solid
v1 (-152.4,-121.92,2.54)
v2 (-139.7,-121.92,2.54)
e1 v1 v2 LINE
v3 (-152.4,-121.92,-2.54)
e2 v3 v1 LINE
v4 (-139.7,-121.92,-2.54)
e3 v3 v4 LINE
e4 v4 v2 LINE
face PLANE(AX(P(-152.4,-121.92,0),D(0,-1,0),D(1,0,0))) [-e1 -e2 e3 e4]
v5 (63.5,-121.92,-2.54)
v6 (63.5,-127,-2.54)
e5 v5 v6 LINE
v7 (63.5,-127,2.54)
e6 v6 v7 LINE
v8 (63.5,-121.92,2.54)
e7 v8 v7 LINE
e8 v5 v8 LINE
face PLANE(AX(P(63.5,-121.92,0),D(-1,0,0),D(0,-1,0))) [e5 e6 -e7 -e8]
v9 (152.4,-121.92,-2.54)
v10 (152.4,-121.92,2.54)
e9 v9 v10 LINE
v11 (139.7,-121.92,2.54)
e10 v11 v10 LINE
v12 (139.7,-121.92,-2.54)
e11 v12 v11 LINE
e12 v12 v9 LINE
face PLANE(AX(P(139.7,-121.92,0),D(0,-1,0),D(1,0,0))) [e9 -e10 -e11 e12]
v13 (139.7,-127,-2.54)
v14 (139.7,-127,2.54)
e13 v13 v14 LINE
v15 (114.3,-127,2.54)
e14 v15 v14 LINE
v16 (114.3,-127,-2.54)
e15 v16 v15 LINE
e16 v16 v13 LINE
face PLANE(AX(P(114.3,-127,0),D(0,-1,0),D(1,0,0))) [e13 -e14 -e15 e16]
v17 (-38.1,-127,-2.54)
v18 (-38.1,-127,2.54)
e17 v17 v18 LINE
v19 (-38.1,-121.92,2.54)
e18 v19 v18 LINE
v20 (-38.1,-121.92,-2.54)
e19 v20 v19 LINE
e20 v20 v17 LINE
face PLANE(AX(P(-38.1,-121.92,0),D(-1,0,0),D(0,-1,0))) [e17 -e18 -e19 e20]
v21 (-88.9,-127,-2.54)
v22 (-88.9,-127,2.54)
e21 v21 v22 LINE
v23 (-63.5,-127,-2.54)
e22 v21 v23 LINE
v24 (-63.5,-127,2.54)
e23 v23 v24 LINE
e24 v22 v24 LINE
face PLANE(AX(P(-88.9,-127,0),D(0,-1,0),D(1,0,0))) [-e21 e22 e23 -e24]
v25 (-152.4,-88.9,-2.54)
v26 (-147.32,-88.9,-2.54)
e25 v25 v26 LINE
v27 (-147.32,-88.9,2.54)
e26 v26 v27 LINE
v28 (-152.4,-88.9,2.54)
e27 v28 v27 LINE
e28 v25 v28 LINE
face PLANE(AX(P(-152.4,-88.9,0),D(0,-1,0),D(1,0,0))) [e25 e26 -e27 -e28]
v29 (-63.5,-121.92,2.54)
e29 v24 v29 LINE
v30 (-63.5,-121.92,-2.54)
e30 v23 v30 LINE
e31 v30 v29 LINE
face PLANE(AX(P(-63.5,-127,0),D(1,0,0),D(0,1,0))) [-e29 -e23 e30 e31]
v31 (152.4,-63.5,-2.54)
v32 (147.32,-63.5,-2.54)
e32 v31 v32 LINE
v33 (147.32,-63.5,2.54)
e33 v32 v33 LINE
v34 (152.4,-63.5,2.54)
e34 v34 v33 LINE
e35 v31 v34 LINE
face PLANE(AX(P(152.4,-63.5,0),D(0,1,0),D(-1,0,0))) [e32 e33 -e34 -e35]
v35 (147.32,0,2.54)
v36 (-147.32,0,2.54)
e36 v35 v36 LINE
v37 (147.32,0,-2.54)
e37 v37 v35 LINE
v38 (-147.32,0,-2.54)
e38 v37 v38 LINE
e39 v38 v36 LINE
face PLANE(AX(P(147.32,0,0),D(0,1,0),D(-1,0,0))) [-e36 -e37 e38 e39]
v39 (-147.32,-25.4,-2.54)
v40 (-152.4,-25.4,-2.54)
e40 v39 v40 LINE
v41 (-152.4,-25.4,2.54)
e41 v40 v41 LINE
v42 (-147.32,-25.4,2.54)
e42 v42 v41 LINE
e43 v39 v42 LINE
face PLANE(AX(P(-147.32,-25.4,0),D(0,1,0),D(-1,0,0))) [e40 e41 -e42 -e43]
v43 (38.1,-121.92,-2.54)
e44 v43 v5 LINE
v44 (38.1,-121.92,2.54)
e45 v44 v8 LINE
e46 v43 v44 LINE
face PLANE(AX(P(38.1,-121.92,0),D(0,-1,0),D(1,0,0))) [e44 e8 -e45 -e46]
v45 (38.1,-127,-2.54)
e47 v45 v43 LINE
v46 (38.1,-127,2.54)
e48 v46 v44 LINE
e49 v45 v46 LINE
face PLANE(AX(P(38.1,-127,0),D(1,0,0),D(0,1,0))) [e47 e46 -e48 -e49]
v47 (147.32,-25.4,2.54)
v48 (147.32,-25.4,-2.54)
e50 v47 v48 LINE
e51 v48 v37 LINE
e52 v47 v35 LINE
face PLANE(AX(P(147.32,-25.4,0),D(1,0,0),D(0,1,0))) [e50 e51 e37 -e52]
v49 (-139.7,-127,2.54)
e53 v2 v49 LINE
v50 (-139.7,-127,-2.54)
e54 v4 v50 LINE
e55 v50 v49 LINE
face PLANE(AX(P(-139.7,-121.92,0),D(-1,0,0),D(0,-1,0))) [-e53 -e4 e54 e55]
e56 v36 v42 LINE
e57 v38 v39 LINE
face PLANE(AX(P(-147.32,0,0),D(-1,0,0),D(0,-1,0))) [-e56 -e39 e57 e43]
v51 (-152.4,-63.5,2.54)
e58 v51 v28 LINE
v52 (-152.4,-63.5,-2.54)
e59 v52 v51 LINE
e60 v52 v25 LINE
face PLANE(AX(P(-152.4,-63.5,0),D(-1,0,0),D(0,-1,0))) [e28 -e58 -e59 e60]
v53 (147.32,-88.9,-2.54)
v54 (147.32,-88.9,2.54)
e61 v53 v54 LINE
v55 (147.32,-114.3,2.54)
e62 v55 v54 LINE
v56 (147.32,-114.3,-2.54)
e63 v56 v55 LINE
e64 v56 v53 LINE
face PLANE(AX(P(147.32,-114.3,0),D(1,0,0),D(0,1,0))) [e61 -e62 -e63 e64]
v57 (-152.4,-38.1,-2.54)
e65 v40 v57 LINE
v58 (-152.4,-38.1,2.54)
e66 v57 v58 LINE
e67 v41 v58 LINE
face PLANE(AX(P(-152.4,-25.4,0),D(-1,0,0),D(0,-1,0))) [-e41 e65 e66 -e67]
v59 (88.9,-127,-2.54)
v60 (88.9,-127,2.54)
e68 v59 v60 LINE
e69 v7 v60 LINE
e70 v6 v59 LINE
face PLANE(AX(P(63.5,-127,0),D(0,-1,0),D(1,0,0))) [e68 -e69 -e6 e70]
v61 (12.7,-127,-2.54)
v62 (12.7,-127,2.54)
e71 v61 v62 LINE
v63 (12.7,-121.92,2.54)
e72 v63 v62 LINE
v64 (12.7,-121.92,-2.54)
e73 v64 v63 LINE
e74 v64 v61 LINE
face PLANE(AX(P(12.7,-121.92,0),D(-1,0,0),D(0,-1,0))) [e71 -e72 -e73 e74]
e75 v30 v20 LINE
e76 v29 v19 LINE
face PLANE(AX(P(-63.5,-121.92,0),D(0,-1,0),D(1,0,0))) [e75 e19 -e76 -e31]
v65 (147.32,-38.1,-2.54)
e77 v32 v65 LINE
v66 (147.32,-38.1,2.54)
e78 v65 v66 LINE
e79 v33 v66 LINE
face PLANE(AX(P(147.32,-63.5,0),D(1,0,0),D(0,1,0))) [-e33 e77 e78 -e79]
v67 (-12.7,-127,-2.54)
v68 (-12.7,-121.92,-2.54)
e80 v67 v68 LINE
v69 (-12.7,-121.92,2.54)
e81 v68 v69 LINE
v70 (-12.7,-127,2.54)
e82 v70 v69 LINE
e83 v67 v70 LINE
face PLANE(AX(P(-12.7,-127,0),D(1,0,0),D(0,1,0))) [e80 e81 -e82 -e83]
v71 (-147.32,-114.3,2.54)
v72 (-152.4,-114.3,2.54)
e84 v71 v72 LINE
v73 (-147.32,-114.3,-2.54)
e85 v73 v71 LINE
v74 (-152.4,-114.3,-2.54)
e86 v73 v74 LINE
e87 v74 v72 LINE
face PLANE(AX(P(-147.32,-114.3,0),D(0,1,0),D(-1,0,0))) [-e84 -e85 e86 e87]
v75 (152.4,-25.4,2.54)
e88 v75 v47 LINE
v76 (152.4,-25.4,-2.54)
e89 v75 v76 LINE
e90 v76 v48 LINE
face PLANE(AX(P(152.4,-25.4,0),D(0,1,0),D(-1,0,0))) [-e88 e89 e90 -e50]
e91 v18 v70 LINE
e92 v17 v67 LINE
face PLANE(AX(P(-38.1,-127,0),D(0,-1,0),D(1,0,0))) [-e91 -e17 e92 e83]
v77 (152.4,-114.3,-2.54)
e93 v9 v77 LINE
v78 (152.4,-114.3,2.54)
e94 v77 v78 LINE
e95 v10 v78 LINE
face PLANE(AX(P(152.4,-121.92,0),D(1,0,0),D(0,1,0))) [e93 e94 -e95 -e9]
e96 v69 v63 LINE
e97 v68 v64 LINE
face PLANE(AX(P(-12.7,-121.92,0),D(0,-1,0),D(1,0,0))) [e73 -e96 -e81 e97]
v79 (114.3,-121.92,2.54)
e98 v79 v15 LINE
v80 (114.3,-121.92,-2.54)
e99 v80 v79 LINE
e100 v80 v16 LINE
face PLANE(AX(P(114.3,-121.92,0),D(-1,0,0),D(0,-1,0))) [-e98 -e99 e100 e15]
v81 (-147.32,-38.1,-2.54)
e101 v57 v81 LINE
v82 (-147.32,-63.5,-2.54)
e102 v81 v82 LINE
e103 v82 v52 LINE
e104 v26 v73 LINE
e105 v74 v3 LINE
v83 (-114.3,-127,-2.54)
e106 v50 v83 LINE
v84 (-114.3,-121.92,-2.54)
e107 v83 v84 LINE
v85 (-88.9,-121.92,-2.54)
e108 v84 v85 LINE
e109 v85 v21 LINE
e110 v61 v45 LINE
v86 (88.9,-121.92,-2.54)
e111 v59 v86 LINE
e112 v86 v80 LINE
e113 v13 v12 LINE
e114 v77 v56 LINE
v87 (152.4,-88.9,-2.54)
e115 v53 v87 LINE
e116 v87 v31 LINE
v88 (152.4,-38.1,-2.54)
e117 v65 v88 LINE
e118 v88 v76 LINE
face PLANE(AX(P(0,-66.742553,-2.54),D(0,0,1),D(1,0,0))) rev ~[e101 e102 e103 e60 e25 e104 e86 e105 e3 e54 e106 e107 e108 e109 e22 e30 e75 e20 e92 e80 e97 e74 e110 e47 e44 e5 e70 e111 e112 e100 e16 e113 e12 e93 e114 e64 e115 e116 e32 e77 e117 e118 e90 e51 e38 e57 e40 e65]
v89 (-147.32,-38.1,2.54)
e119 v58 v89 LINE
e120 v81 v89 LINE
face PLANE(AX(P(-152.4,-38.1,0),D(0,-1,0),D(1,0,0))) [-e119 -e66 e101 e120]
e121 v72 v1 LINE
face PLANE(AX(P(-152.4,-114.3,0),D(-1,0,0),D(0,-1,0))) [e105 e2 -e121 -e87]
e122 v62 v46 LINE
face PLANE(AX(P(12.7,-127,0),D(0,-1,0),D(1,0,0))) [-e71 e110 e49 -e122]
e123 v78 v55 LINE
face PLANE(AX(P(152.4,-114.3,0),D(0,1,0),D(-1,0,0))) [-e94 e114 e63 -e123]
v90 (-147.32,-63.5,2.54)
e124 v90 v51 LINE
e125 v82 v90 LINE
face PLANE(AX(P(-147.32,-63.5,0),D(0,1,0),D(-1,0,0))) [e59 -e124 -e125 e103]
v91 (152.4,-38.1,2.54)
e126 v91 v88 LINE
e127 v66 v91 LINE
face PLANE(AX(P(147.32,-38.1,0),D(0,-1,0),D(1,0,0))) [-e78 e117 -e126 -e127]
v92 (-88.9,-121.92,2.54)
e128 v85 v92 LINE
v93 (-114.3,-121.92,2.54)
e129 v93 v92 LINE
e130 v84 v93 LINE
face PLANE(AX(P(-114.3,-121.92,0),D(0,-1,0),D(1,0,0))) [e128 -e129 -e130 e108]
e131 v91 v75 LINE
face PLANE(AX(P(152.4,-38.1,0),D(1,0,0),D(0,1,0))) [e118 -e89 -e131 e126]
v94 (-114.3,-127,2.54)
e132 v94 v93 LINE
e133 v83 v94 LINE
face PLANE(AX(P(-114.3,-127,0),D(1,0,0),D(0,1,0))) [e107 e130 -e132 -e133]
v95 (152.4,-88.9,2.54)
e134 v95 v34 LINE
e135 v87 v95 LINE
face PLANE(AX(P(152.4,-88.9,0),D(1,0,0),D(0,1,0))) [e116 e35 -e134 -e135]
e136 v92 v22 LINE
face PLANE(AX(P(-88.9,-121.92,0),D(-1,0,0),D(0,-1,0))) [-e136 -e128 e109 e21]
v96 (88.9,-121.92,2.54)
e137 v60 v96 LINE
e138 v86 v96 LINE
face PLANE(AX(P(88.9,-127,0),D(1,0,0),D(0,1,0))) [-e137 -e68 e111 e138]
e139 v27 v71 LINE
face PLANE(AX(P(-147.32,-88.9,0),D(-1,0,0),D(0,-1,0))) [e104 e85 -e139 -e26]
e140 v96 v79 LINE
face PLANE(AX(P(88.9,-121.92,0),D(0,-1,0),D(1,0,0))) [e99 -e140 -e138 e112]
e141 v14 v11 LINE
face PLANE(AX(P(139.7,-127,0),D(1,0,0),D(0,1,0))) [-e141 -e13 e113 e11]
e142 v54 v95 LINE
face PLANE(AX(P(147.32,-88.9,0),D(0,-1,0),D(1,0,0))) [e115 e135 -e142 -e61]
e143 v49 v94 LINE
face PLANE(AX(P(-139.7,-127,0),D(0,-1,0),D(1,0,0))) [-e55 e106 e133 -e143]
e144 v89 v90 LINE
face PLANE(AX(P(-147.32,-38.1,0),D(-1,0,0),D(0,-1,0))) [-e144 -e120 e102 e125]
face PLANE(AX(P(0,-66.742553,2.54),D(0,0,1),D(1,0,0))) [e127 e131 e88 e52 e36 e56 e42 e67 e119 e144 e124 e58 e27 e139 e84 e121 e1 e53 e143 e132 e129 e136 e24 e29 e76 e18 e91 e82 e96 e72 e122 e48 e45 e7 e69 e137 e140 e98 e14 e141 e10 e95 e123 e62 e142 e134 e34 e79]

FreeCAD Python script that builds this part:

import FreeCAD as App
import Part
import Sketcher
from FreeCAD import Vector
Q = App.Units.Quantity


def add_polygon(sketch, points):
    """Adds a closed chain of lines whose ends are joined by coincident constraints."""
    first, n = sketch.GeometryCount, len(points)
    for a, b in zip(points, points[1:] + points[:1]):
        sketch.addGeometry(Part.LineSegment(App.Vector(*a, 0), App.Vector(*b, 0)), False)
    for i in range(n):
        sketch.addConstraint(Sketcher.Constraint("Coincident", first + i, 2, first + (i + 1) % n, 1))

doc = App.newDocument("Part")
body = doc.addObject("PartDesign::Body", "Body")

sketch1 = body.newObject("Sketcher::SketchObject", "Sketch")
sketch1.AttachmentSupport = (doc.getObject("XY_Plane"), [""])
sketch1.MapMode = "FlatFace"
add_polygon(sketch1, [(147, -25), (147, 0), (-147, 0), (-147, -25), (-152, -25), (-152, -38), (-147, -38), (-147, -64), (-152, -64), (-152, -89), (-147, -89), (-147, -114), (-152, -114), (-152, -122), (-140, -122), (-140, -127), (-114, -127), (-114, -122), (-89, -122), (-89, -127), (-64, -127), (-64, -122), (-38, -122), (-38, -127), (-13, -127), (-13, -122), (13, -122), (13, -127), (38, -127), (38, -122), (64, -122), (64, -127), (89, -127), (89, -122), (114, -122), (114, -127), (140, -127), (140, -122), (152, -122), (152, -114), (147, -114), (147, -89), (152, -89), (152, -64), (147, -64), (147, -38), (152, -38), (152, -25)])
sketch1.addConstraint([
    Sketcher.Constraint("Vertical", 0),
    Sketcher.Constraint("Horizontal", 1),
    Sketcher.Constraint("Vertical", 2),
    Sketcher.Constraint("Horizontal", 3),
    Sketcher.Constraint("Vertical", 4),
    Sketcher.Constraint("Horizontal", 5),
    Sketcher.Constraint("Vertical", 6),
    Sketcher.Constraint("Horizontal", 7),
    Sketcher.Constraint("Vertical", 8),
    Sketcher.Constraint("Horizontal", 9),
    Sketcher.Constraint("Vertical", 10),
    Sketcher.Constraint("Horizontal", 11),
    Sketcher.Constraint("Vertical", 12),
    Sketcher.Constraint("Horizontal", 13),
    Sketcher.Constraint("Vertical", 14),
    Sketcher.Constraint("Horizontal", 15),
    Sketcher.Constraint("Vertical", 16),
    Sketcher.Constraint("Horizontal", 17),
    Sketcher.Constraint("Vertical", 18),
    Sketcher.Constraint("Horizontal", 19),
    Sketcher.Constraint("Vertical", 20),
    Sketcher.Constraint("Horizontal", 21),
    Sketcher.Constraint("Vertical", 22),
    Sketcher.Constraint("Horizontal", 23),
    Sketcher.Constraint("Vertical", 24),
    Sketcher.Constraint("Horizontal", 25),
    Sketcher.Constraint("Vertical", 26),
    Sketcher.Constraint("Horizontal", 27),
    Sketcher.Constraint("Vertical", 28),
    Sketcher.Constraint("Horizontal", 29),
    Sketcher.Constraint("Vertical", 30),
    Sketcher.Constraint("Horizontal", 31),
    Sketcher.Constraint("Vertical", 32),
    Sketcher.Constraint("Horizontal", 33),
    Sketcher.Constraint("Vertical", 34),
    Sketcher.Constraint("Horizontal", 35),
    Sketcher.Constraint("Vertical", 36),
    Sketcher.Constraint("Horizontal", 37),
    Sketcher.Constraint("Vertical", 38),
    Sketcher.Constraint("Horizontal", 39),
    Sketcher.Constraint("Vertical", 40),
    Sketcher.Constraint("Horizontal", 41),
    Sketcher.Constraint("Vertical", 42),
    Sketcher.Constraint("Horizontal", 43),
    Sketcher.Constraint("Vertical", 44),
    Sketcher.Constraint("Horizontal", 45),
    Sketcher.Constraint("Vertical", 46),
    Sketcher.Constraint("Horizontal", 47),
    Sketcher.Constraint("Symmetric", 0, 2, 1, 2, -1, 1),
    Sketcher.Constraint("Symmetric", 23, 2, 26, 2, -2),
    Sketcher.Constraint("Symmetric", 21, 2, 28, 2, -2),
    Sketcher.Constraint("Symmetric", 19, 2, 30, 2, -2),
    Sketcher.Constraint("Symmetric", 17, 2, 32, 2, -2),
    Sketcher.Constraint("Symmetric", 15, 2, 34, 2, -2),
    Sketcher.Constraint("Symmetric", 13, 2, 36, 2, -2),
    Sketcher.Constraint("Symmetric", 11, 2, 38, 2, -2),
    Sketcher.Constraint("Symmetric", 9, 2, 40, 2, -2),
    Sketcher.Constraint("Symmetric", 7, 2, 42, 2, -2),
    Sketcher.Constraint("Symmetric", 5, 2, 44, 2, -2),
    Sketcher.Constraint("Symmetric", 3, 2, 46, 2, -2),
    Sketcher.Constraint("Horizontal", 13, 2, 16, 2),
    Sketcher.Constraint("Horizontal", 15, 2, 18, 2),
    Sketcher.Constraint("Horizontal", 17, 2, 20, 2),
    Sketcher.Constraint("Horizontal", 19, 2, 22, 2),
    Sketcher.Constraint("Horizontal", 21, 2, 24, 2),
    Sketcher.Constraint("Vertical", 2, 2, 5, 2),
    Sketcher.Constraint("Vertical", 4, 2, 7, 2),
    Sketcher.Constraint("Vertical", 6, 2, 9, 2),
    Sketcher.Constraint("Vertical", 8, 2, 11, 2),
    Sketcher.Constraint("Equal", 15, 17),
    Sketcher.Constraint("Equal", 17, 19),
    Sketcher.Constraint("Equal", 19, 21),
    Sketcher.Constraint("Equal", 21, 23),
    Sketcher.Constraint("Equal", 23, 25),
    Sketcher.Constraint("Equal", 35, 0),
    Sketcher.Constraint("Equal", 37, 4),
    Sketcher.Constraint("Equal", 2, 6),
    Sketcher.Constraint("Equal", 6, 8),
    Sketcher.Constraint("Equal", 8, 10),
    Sketcher.Constraint("Equal", 47, 14),
    Sketcher.Constraint("DistanceX", 15, 1, 15, 2, Q("1 in")),
    Sketcher.Constraint("DistanceX", 1, 2, 1, 1, Q("11.6 in")),
    Sketcher.Constraint("DistanceX", 3, 2, 3, 1, Q("0.2 in")),
    Sketcher.Constraint("DistanceY", 12, 2, 12, 1, Q("0.3 in")),
])
pad1 = body.newObject("PartDesign::Pad", "Pad")
pad1.Profile = sketch1
pad1.Length = Q("0.2 in")
pad1.Midplane = True

doc.recompute()
